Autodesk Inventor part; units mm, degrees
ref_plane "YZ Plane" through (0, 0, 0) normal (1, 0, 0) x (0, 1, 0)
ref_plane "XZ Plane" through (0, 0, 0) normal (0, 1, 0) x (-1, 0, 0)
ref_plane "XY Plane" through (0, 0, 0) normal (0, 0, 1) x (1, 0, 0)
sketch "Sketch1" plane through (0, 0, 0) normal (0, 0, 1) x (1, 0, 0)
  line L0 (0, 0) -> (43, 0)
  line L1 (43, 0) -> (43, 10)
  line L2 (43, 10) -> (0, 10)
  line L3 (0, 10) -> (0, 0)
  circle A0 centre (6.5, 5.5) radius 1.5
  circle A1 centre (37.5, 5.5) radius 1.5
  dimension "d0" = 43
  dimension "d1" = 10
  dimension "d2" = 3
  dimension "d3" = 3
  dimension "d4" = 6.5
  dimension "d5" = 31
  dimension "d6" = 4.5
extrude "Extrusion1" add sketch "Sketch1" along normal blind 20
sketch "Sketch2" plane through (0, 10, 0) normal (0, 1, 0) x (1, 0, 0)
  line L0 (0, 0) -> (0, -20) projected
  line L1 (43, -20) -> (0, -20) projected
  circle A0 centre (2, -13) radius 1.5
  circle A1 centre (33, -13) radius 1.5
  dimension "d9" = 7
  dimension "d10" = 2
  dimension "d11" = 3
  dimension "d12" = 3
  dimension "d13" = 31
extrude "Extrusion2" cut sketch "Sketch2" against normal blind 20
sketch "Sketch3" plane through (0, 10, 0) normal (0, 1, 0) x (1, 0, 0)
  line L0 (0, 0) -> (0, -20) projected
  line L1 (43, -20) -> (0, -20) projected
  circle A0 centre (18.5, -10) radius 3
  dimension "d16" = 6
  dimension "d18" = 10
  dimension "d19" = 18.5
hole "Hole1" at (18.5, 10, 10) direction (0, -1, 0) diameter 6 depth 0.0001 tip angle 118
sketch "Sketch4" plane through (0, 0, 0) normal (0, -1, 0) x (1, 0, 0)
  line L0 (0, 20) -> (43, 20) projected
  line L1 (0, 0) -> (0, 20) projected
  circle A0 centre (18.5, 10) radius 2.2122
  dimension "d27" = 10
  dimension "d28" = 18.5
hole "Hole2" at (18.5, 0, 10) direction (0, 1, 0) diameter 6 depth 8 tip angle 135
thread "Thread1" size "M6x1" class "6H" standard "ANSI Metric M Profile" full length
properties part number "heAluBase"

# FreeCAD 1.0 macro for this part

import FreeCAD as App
import Part
import Sketcher
from FreeCAD import Vector


def add_polygon(sketch, points):
    """Adds a closed chain of lines whose ends are joined by coincident constraints."""
    first, n = sketch.GeometryCount, len(points)
    for a, b in zip(points, points[1:] + points[:1]):
        sketch.addGeometry(Part.LineSegment(App.Vector(*a, 0), App.Vector(*b, 0)), False)
    for i in range(n):
        sketch.addConstraint(Sketcher.Constraint("Coincident", first + i, 2, first + (i + 1) % n, 1))

doc = App.newDocument("Part")
params = doc.addObject("Spreadsheet::Sheet", "Params")
for row, (alias, value) in enumerate([
    ("sketch1_diameter", "3 mm"),
    ("sketch1_width", "43 mm"),
    ("sketch1_height", "10 mm"),
    ("pad1_length", "20 mm"),
    ("sketch2_diameter", "3 mm"),
    ("pocket1_length", "20 mm"),
    ("sketch3_diameter", "6 mm"),
    ("hole_diameter", "6 mm"),
    ("hole_depth", "0.0001 mm"),
    ("sketch4_diameter", "6 mm"),
    ("hole2_diameter", "6 mm"),
    ("hole2_depth", "8 mm"),
], start=1):
    params.set(f"A{row}", alias)
    params.set(f"B{row}", "=" + value)
    params.setAlias(f"B{row}", alias)

body = doc.addObject("PartDesign::Body", "Body")

# Sketch on XY plane
sketch1 = doc.addObject("Sketcher::SketchObject", "Sketch")
body.addObject(sketch1)
sketch1.AttachmentSupport = (doc.XY_Plane, [""])
sketch1.MapMode = "FlatFace"
add_polygon(sketch1, [(0, 10), (0, 0), (43, 0), (43, 10)])  # lines 0-3
sketch1.addGeometry(Part.Circle(Vector(6.5, 5.5, 0), Vector(0, 0, 1), 1.5), False)  # 4
sketch1.addGeometry(Part.Circle(Vector(37.5, 5.5, 0), Vector(0, 0, 1), 1.5), False)  # 5
sketch1.addConstraint([
    Sketcher.Constraint("Vertical", 0),
    Sketcher.Constraint("Horizontal", 1),
    Sketcher.Constraint("Vertical", 2),
    Sketcher.Constraint("Horizontal", 3),
    Sketcher.Constraint("Coincident", 0, 2, -1, 1),
    Sketcher.Constraint("Equal", 4, 5),
    Sketcher.Constraint("Horizontal", 4, 3, 5, 3),
    Sketcher.Constraint("Diameter", 4, 3.0),
    Sketcher.Constraint("DistanceX", 1, 1, 1, 2, 43.0),
    Sketcher.Constraint("DistanceY", 0, 2, 0, 1, 10.0),
    Sketcher.Constraint("DistanceX", 4, 3, 5, 3, 31.0),
    Sketcher.Constraint("DistanceX", -1, 1, 4, 3, 6.5),
    Sketcher.Constraint("DistanceY", 5, 3, 2, 2, 4.5),
])
sketch1.setExpression("Constraints[11]", "Params.sketch1_diameter")
sketch1.setExpression("Constraints[12]", "Params.sketch1_width")
sketch1.setExpression("Constraints[13]", "Params.sketch1_height")
pad1 = doc.addObject("PartDesign::Pad", "Pad")
body.addObject(pad1)
pad1.Profile = sketch1
pad1.setExpression("Length", "Params.pad1_length")

# Sketch on XZ plane
sketch2 = doc.addObject("Sketcher::SketchObject", "Sketch001")
body.addObject(sketch2)
sketch2.AttachmentSupport = (doc.XZ_Plane, [""])
sketch2.MapMode = "FlatFace"
sketch2.AttachmentOffset = App.Placement(Vector(0, 0, -10), App.Rotation())
sketch2.addGeometry([
    Part.Circle(Vector(2, 13, 0), Vector(0, 0, 1), 1.5),
    Part.Circle(Vector(33, 13, 0), Vector(0, 0, 1), 1.5),
], False)
sketch2.addConstraint([
    Sketcher.Constraint("Equal", 0, 1),
    Sketcher.Constraint("Horizontal", 0, 3, 1, 3),
    Sketcher.Constraint("Diameter", 0, 3.0),
    Sketcher.Constraint("DistanceX", -1, 1, 0, 3, 2.0),
    Sketcher.Constraint("DistanceX", 0, 3, 1, 3, 31.0),
    Sketcher.Constraint("DistanceY", -1, 1, 0, 3, 13.0),
])
sketch2.setExpression("Constraints[2]", "Params.sketch2_diameter")
pocket1 = doc.addObject("PartDesign::Pocket", "Pocket")
body.addObject(pocket1)
pocket1.Profile = sketch2
pocket1.setExpression("Length", "Params.pocket1_length")
pocket1.Reversed = True

# Sketch on XZ plane
sketch3 = doc.addObject("Sketcher::SketchObject", "Sketch002")
body.addObject(sketch3)
sketch3.AttachmentSupport = (doc.XZ_Plane, [""])
sketch3.MapMode = "FlatFace"
sketch3.AttachmentOffset = App.Placement(Vector(0, 0, -10), App.Rotation())
sketch3.addGeometry(Part.Circle(Vector(18.5, 10, 0), Vector(0, 0, 1), 3), False)
sketch3.addConstraint([
    Sketcher.Constraint("Diameter", 0, 6.0),
    Sketcher.Constraint("DistanceY", -1, 1, 0, 3, 10.0),
    Sketcher.Constraint("DistanceX", -1, 1, 0, 3, 18.5),
])
sketch3.setExpression("Constraints[0]", "Params.sketch3_diameter")
doc.recompute()
hole = doc.addObject("PartDesign::Hole", "Hole")
body.addObject(hole)
hole.Profile = sketch3
hole.ThreadType = "None"
hole.setExpression("Diameter", "Params.hole_diameter")
hole.DepthType = "Dimension"
hole.setExpression("Depth", "Params.hole_depth")
hole.DrillPoint = "Angled"
hole.DrillPointAngle = 118
hole.Reversed = True

# Sketch on XZ plane
sketch4 = doc.addObject("Sketcher::SketchObject", "Sketch003")
body.addObject(sketch4)
sketch4.AttachmentSupport = (doc.XZ_Plane, [""])
sketch4.MapMode = "FlatFace"
sketch4.addGeometry(Part.Circle(Vector(18.5, 10, 0), Vector(0, 0, 1), 3), False)
sketch4.addConstraint([
    Sketcher.Constraint("Diameter", 0, 6.0),
    Sketcher.Constraint("DistanceY", -1, 1, 0, 3, 10.0),
    Sketcher.Constraint("DistanceX", -1, 1, 0, 3, 18.5),
])
sketch4.setExpression("Constraints[0]", "Params.sketch4_diameter")
doc.recompute()
hole2 = doc.addObject("PartDesign::Hole", "Hole001")
body.addObject(hole2)
hole2.Profile = sketch4
hole2.ThreadType = "None"
hole2.setExpression("Diameter", "Params.hole2_diameter")
hole2.DepthType = "Dimension"
hole2.setExpression("Depth", "Params.hole2_depth")
hole2.DrillPoint = "Angled"
hole2.DrillPointAngle = 135

doc.recompute()
